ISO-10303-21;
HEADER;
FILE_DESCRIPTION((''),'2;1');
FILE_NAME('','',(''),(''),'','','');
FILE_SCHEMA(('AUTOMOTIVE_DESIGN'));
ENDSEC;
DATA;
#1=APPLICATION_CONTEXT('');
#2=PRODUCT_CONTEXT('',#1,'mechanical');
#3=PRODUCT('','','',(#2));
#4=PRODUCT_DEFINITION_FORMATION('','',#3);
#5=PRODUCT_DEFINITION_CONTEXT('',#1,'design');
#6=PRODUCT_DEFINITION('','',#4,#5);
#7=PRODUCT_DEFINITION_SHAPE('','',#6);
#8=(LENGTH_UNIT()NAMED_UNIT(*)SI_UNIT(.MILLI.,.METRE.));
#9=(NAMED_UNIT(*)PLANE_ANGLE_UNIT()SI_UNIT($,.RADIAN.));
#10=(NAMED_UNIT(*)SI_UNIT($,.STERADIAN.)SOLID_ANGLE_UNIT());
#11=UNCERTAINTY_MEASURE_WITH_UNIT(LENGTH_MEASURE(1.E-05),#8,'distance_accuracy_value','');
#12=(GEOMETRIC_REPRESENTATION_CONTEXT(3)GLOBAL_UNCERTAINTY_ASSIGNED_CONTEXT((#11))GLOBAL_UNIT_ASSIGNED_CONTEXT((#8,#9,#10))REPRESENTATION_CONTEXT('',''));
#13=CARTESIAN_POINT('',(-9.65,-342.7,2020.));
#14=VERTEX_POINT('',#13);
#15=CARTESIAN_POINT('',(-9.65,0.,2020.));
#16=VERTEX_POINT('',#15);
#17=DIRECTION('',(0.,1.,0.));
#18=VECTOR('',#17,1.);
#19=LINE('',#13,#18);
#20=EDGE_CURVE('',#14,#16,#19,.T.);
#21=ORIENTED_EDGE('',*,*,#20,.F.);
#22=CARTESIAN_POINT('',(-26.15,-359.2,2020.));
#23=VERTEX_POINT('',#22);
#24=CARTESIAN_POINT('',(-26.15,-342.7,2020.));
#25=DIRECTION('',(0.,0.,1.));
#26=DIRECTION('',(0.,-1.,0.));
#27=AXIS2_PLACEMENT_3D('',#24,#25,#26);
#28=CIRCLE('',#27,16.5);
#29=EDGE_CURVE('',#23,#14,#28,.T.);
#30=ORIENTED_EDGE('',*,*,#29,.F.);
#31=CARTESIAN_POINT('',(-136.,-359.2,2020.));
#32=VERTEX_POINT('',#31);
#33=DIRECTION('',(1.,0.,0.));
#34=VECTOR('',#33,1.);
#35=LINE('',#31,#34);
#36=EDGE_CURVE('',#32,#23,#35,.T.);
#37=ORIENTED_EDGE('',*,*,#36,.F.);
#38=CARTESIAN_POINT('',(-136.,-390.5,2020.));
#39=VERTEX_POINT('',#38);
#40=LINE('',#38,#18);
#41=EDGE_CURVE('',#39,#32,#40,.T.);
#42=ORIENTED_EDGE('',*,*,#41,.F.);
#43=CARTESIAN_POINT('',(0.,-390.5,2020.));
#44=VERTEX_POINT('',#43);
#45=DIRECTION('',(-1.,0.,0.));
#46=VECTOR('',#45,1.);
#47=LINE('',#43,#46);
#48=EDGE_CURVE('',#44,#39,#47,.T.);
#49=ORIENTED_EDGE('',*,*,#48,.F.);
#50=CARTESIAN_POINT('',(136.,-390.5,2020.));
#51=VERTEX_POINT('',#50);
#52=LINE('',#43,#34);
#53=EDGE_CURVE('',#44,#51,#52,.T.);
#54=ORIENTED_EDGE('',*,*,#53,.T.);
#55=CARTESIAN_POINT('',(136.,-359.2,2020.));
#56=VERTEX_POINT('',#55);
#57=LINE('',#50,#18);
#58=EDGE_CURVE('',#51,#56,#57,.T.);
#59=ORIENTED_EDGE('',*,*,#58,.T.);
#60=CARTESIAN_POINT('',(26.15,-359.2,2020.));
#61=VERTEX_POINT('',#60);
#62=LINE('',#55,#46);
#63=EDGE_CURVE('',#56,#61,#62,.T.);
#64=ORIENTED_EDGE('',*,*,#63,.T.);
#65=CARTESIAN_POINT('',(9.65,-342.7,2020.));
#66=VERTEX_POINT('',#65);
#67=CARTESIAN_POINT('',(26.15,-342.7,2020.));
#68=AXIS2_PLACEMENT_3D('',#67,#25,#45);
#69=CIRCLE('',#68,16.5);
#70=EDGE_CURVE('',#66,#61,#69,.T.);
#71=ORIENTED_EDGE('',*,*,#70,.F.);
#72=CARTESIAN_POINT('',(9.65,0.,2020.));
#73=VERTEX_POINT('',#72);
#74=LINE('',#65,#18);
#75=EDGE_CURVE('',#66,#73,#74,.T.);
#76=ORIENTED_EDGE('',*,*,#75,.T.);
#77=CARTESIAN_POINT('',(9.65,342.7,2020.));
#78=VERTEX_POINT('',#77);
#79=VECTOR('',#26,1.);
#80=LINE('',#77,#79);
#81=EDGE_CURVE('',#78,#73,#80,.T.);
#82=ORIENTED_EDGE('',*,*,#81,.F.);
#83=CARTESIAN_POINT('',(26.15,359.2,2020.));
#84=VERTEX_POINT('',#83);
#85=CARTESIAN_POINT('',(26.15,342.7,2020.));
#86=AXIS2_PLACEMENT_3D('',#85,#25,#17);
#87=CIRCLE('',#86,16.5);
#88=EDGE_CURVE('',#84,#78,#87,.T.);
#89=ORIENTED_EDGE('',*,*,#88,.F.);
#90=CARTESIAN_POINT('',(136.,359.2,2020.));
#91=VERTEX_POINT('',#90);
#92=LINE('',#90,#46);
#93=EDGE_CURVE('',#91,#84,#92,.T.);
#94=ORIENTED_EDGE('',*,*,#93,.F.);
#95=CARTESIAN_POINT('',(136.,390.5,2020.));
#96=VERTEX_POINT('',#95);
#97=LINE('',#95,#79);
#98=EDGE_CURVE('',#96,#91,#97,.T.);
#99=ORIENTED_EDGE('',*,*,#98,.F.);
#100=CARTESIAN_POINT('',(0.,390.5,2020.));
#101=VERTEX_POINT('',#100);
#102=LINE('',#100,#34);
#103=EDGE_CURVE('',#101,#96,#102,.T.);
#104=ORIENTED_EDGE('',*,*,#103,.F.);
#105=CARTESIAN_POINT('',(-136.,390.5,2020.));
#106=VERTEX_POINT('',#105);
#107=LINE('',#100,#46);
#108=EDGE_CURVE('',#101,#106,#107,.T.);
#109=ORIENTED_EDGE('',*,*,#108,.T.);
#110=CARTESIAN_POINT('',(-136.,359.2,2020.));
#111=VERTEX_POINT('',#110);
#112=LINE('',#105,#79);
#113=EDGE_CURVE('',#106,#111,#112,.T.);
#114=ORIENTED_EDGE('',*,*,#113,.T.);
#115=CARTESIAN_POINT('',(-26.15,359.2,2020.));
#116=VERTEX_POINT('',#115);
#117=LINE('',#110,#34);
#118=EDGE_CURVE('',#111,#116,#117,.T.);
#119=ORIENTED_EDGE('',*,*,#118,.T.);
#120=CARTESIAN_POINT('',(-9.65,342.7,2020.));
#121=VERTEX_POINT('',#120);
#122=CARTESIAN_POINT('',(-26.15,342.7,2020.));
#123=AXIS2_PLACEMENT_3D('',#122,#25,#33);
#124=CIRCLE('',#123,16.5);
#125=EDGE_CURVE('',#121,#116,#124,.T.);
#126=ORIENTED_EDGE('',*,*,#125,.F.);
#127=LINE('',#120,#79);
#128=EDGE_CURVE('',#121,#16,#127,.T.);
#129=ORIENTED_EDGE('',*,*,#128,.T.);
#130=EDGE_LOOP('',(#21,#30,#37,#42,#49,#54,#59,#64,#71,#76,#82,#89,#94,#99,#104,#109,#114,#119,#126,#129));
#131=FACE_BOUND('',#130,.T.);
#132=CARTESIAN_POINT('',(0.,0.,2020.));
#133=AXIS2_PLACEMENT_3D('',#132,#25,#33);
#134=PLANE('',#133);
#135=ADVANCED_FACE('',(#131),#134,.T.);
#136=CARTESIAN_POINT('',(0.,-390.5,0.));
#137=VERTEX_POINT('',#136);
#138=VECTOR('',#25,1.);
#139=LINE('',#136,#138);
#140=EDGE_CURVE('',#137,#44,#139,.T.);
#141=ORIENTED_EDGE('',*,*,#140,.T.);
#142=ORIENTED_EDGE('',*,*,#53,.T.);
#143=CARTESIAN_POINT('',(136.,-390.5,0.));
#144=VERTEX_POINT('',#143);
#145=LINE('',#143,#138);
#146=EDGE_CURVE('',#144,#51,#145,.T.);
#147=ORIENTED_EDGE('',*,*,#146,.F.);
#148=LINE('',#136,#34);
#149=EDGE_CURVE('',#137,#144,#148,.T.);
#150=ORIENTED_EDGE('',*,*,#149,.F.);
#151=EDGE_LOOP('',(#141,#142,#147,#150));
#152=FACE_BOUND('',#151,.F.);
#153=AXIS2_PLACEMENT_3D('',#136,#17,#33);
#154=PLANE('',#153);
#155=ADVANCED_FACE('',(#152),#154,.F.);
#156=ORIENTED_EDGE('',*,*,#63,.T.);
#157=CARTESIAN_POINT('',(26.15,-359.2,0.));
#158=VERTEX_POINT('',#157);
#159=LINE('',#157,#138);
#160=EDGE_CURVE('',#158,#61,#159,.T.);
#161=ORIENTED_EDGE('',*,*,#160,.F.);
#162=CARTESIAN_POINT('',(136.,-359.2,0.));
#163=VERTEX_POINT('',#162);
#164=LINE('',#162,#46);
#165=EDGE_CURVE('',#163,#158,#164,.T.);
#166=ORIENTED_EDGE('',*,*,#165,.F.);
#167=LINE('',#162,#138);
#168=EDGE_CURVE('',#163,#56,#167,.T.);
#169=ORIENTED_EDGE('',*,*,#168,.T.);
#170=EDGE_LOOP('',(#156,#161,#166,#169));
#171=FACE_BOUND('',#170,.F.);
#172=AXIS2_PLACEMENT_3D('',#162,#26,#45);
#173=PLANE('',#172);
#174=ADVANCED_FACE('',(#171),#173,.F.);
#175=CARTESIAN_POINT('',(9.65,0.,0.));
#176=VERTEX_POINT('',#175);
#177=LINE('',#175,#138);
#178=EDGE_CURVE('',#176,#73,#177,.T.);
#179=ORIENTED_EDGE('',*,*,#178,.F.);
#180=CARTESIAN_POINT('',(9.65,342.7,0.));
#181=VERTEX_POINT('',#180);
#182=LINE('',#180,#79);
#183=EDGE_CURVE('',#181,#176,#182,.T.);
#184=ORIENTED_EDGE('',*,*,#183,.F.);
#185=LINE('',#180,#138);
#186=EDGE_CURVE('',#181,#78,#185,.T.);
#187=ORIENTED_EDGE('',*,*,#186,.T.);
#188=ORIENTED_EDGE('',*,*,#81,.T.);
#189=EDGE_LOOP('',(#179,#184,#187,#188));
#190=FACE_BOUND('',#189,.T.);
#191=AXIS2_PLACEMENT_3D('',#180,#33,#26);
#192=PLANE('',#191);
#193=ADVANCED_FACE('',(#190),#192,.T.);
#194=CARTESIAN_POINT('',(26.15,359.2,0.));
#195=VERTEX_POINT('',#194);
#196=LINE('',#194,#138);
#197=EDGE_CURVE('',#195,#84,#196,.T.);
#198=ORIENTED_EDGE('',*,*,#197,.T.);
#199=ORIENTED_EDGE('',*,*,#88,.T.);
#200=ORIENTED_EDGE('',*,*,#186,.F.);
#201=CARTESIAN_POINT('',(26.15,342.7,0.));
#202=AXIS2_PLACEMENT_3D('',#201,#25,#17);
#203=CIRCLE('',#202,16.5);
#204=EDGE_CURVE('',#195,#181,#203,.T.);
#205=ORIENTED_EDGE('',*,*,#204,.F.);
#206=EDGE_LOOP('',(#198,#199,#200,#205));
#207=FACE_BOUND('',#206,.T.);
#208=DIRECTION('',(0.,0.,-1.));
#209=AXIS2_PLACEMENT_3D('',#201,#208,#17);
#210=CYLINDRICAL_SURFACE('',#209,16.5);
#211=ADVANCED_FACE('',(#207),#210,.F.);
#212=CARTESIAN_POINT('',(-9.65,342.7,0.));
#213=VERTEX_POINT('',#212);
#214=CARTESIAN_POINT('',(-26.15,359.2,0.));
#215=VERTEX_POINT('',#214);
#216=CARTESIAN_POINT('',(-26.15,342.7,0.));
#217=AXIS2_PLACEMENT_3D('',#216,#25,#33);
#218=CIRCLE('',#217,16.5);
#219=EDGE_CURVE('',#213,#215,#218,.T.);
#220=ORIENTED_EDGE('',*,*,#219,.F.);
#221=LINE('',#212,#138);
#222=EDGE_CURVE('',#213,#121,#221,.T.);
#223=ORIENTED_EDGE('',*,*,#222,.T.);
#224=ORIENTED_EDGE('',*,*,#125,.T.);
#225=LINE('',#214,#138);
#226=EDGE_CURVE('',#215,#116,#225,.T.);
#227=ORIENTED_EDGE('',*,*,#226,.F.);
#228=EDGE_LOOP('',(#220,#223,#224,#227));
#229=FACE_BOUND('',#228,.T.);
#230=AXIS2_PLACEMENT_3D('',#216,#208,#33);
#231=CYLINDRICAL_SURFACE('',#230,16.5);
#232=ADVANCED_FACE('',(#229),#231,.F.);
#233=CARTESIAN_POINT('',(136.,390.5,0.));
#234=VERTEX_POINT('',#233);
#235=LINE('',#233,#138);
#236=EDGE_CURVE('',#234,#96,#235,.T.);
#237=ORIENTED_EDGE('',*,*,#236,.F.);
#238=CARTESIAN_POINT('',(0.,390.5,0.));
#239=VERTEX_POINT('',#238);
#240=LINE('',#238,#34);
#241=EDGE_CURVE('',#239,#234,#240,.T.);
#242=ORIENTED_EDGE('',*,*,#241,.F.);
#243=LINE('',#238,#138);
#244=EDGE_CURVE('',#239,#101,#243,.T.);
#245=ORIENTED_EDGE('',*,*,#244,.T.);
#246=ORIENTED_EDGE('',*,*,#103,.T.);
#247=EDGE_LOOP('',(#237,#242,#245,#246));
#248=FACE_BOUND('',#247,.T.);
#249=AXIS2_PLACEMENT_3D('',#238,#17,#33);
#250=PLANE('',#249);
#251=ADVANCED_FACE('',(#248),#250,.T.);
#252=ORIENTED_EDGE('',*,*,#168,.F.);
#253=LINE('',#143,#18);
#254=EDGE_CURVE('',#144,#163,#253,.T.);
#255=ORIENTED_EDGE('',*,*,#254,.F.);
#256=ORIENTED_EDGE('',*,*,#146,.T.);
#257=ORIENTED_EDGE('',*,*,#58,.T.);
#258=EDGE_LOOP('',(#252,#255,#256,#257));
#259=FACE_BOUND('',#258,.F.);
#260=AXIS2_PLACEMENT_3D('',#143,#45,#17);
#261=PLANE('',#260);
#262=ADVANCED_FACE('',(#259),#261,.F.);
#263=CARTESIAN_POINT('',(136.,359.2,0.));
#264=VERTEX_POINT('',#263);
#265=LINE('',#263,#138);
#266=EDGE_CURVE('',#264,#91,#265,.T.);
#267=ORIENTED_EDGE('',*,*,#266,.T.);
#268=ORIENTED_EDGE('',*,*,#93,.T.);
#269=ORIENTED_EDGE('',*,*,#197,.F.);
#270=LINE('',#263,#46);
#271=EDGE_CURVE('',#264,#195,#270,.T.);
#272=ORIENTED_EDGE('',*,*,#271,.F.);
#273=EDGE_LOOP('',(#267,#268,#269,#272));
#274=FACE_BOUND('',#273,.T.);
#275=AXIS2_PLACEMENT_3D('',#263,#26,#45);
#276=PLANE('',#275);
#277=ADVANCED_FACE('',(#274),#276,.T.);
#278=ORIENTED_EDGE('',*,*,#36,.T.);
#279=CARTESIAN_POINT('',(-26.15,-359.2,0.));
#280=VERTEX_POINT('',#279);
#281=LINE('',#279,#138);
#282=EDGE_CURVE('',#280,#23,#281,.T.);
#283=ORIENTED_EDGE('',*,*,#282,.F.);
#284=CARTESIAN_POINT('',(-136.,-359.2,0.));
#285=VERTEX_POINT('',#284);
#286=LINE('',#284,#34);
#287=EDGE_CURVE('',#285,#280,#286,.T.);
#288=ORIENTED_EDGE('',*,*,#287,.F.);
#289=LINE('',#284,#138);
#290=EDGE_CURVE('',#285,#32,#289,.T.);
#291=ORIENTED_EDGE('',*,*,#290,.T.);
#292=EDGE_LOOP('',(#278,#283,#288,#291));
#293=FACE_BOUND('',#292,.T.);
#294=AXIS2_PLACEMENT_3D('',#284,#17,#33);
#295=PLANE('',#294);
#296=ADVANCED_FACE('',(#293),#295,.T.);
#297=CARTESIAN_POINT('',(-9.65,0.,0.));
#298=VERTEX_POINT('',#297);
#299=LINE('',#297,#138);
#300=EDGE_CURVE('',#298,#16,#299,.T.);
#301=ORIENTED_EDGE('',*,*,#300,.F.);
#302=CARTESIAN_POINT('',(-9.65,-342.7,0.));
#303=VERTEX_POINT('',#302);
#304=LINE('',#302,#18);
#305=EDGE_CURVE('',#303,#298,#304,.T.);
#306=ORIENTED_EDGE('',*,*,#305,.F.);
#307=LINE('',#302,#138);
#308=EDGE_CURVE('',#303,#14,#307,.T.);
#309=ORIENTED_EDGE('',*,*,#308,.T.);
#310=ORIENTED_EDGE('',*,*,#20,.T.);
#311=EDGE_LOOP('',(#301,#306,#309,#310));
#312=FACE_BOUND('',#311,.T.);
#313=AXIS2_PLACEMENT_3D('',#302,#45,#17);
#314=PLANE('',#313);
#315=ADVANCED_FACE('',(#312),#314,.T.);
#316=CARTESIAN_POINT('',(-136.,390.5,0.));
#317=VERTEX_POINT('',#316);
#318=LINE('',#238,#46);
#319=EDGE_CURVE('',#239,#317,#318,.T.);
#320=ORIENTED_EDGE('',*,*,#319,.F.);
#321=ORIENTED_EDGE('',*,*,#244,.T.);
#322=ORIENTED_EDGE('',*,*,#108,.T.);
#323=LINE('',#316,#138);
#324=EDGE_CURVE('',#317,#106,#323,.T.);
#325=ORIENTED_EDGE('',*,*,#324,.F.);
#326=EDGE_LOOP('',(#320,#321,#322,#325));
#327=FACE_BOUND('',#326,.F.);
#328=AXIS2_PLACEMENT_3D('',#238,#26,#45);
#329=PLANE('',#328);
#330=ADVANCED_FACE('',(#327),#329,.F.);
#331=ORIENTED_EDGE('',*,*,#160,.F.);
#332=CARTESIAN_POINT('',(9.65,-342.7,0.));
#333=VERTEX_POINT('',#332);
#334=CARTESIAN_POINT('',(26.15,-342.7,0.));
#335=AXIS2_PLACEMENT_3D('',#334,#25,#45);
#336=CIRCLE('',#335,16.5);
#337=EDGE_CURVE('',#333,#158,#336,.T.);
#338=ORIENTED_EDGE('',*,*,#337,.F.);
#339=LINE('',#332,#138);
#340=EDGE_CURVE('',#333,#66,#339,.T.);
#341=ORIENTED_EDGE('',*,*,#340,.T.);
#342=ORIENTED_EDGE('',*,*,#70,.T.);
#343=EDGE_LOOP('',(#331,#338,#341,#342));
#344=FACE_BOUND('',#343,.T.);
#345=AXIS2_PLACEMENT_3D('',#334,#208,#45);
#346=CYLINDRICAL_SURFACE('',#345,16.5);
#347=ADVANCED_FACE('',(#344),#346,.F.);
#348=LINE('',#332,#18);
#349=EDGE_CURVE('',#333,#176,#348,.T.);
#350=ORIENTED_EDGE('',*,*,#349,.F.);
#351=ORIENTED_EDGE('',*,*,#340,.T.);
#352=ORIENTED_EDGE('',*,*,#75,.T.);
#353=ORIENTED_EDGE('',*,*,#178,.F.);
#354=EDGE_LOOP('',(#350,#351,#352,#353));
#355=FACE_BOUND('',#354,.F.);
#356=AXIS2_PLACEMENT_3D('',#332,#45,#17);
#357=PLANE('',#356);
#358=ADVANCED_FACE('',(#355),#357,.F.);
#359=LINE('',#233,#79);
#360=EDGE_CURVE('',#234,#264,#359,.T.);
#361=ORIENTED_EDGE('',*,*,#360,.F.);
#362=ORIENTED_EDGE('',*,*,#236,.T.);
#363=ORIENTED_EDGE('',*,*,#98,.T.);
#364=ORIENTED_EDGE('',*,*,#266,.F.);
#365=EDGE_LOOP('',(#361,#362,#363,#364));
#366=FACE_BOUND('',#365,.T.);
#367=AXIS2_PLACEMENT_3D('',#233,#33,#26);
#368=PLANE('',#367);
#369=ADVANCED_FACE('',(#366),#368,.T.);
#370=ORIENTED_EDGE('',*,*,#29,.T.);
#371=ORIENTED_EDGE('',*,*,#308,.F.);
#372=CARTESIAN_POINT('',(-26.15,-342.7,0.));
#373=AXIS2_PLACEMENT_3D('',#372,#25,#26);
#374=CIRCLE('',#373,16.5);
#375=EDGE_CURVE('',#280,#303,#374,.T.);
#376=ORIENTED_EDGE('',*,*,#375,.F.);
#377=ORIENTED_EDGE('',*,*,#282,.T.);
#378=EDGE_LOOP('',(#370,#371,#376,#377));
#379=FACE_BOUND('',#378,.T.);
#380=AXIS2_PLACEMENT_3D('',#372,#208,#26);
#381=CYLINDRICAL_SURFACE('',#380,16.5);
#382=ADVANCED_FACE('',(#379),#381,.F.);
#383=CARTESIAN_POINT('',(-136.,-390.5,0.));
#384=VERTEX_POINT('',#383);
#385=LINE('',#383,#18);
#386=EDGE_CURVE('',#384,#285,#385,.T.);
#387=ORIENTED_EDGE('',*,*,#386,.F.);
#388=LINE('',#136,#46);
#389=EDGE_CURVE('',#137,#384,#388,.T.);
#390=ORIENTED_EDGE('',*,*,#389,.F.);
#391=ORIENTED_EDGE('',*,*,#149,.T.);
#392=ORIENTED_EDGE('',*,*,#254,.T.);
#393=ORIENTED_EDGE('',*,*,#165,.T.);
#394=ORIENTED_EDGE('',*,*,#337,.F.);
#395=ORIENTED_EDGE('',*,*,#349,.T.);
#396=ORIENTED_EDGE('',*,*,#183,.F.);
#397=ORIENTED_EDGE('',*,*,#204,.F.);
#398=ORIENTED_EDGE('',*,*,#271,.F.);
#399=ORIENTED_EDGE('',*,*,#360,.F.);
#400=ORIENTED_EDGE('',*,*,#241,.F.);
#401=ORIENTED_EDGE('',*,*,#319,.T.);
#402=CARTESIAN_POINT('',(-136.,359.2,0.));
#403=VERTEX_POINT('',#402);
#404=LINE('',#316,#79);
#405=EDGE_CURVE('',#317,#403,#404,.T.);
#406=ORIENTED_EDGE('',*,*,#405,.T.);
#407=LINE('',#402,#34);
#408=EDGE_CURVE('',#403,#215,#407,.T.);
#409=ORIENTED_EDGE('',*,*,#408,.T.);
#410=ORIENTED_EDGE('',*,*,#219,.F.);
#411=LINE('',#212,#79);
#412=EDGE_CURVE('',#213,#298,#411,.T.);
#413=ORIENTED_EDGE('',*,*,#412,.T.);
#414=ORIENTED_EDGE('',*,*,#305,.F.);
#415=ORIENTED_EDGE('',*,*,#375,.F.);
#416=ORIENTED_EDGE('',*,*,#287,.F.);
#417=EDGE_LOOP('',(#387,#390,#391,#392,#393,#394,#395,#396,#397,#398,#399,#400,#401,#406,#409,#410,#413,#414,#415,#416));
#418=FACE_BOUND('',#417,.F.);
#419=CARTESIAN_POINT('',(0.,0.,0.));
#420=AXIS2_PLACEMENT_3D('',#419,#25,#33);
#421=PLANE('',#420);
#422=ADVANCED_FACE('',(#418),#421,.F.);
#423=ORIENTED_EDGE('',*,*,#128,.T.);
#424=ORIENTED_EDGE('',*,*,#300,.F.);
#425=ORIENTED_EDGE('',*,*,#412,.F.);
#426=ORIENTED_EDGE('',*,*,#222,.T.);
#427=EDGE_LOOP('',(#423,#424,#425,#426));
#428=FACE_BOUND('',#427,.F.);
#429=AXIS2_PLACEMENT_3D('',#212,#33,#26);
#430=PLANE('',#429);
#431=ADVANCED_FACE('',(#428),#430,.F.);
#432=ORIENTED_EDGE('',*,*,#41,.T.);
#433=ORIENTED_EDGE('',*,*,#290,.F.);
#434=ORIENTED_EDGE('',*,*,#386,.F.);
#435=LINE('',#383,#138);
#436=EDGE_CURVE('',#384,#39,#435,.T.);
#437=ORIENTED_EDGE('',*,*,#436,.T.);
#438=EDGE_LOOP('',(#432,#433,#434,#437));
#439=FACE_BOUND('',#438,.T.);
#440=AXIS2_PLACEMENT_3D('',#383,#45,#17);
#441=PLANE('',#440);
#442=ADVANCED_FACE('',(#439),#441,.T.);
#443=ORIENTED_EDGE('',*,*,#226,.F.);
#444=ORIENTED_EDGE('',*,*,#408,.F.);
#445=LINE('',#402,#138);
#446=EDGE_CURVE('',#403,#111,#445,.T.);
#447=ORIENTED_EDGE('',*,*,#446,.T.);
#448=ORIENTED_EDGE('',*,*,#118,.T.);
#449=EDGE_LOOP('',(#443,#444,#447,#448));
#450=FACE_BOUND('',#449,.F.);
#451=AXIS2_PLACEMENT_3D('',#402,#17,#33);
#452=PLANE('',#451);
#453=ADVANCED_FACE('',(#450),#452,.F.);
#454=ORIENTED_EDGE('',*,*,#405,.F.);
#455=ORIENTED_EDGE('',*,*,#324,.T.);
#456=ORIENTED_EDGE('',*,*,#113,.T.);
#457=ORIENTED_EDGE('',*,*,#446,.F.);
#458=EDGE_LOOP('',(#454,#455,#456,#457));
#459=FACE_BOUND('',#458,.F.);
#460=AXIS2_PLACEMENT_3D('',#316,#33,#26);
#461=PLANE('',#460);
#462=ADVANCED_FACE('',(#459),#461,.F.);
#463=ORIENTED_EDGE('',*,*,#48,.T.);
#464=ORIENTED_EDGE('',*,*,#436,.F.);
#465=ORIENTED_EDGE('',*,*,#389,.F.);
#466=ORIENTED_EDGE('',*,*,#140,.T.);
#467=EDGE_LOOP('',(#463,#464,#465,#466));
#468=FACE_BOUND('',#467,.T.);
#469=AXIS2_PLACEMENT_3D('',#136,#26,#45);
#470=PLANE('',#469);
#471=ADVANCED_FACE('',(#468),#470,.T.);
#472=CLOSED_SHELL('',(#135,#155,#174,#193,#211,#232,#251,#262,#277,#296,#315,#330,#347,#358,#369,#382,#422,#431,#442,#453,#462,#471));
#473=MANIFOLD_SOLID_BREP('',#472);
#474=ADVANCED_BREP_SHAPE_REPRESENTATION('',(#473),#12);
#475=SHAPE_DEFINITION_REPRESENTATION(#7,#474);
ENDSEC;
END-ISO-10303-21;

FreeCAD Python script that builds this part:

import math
import FreeCAD as App
import Part
import Sketcher

V = App.Vector
Q = App.Units.Quantity

doc = App.newDocument("Part")
body = doc.addObject("PartDesign::Body", "Body")

sketch1 = body.newObject("Sketcher::SketchObject", "Sketch")
sketch1.AttachmentSupport = (doc.getObject("XY_Plane"), [""])
sketch1.MapMode = "FlatFace"
sketch1.addGeometry(Part.LineSegment(V(-136, -359, 0), V(-136, -390, 0)), False)
sketch1.addGeometry(Part.LineSegment(V(-136, -390, 0), V(136, -390, 0)), False)
sketch1.addGeometry(Part.LineSegment(V(136, -390, 0), V(136, -359, 0)), False)
sketch1.addGeometry(Part.LineSegment(V(136, -359, 0), V(26, -359, 0)), False)
sketch1.addGeometry(Part.ArcOfCircle(Part.Circle(V(26, -343, 0), V(0, 0, 1), 16), math.radians(180), math.radians(270)), False)
sketch1.addGeometry(Part.LineSegment(V(10, -343, 0), V(10, 343, 0)), False)
sketch1.addGeometry(Part.ArcOfCircle(Part.Circle(V(26, 343, 0), V(0, 0, 1), 16), math.radians(90), math.radians(180)), False)
sketch1.addGeometry(Part.LineSegment(V(26, 359, 0), V(136, 359, 0)), False)
sketch1.addGeometry(Part.LineSegment(V(136, 359, 0), V(136, 390, 0)), False)
sketch1.addGeometry(Part.LineSegment(V(136, 390, 0), V(-136, 390, 0)), False)
sketch1.addGeometry(Part.LineSegment(V(-136, 390, 0), V(-136, 359, 0)), False)
sketch1.addGeometry(Part.LineSegment(V(-136, 359, 0), V(-26, 359, 0)), False)
sketch1.addGeometry(Part.ArcOfCircle(Part.Circle(V(-26, 343, 0), V(0, 0, 1), 16), math.radians(0), math.radians(90)), False)
sketch1.addGeometry(Part.LineSegment(V(-10, 343, 0), V(-10, -343, 0)), False)
sketch1.addGeometry(Part.ArcOfCircle(Part.Circle(V(-26, -343, 0), V(0, 0, 1), 16), math.radians(-90), math.radians(0)), False)
sketch1.addGeometry(Part.LineSegment(V(-26, -359, 0), V(-136, -359, 0)), False)
sketch1.addConstraint(Sketcher.Constraint("Coincident", 0, 2, 1, 1))
sketch1.addConstraint(Sketcher.Constraint("Coincident", 1, 2, 2, 1))
sketch1.addConstraint(Sketcher.Constraint("Coincident", 2, 2, 3, 1))
sketch1.addConstraint(Sketcher.Constraint("Tangent", 3, 2, 4, 2))
sketch1.addConstraint(Sketcher.Constraint("Tangent", 4, 1, 5, 1))
sketch1.addConstraint(Sketcher.Constraint("Tangent", 5, 2, 6, 2))
sketch1.addConstraint(Sketcher.Constraint("Tangent", 6, 1, 7, 1))
sketch1.addConstraint(Sketcher.Constraint("Coincident", 7, 2, 8, 1))
sketch1.addConstraint(Sketcher.Constraint("Coincident", 8, 2, 9, 1))
sketch1.addConstraint(Sketcher.Constraint("Coincident", 9, 2, 10, 1))
sketch1.addConstraint(Sketcher.Constraint("Coincident", 10, 2, 11, 1))
sketch1.addConstraint(Sketcher.Constraint("Tangent", 11, 2, 12, 2))
sketch1.addConstraint(Sketcher.Constraint("Tangent", 12, 1, 13, 1))
sketch1.addConstraint(Sketcher.Constraint("Tangent", 13, 2, 14, 2))
sketch1.addConstraint(Sketcher.Constraint("Tangent", 14, 1, 15, 1))
sketch1.addConstraint(Sketcher.Constraint("Coincident", 15, 2, 0, 1))
sketch1.addConstraint(Sketcher.Constraint("Vertical", 0))
sketch1.addConstraint(Sketcher.Constraint("Horizontal", 1))
sketch1.addConstraint(Sketcher.Constraint("Vertical", 2))
sketch1.addConstraint(Sketcher.Constraint("Horizontal", 3))
sketch1.addConstraint(Sketcher.Constraint("Vertical", 5))
sketch1.addConstraint(Sketcher.Constraint("Horizontal", 7))
sketch1.addConstraint(Sketcher.Constraint("Vertical", 8))
sketch1.addConstraint(Sketcher.Constraint("Horizontal", 9))
sketch1.addConstraint(Sketcher.Constraint("Vertical", 10))
sketch1.addConstraint(Sketcher.Constraint("Horizontal", 11))
sketch1.addConstraint(Sketcher.Constraint("Vertical", 13))
sketch1.addConstraint(Sketcher.Constraint("Horizontal", 15))
sketch1.addConstraint(Sketcher.Constraint("Equal", 4, 6))
sketch1.addConstraint(Sketcher.Constraint("Equal", 6, 12))
sketch1.addConstraint(Sketcher.Constraint("Equal", 12, 14))
sketch1.addConstraint(Sketcher.Constraint("Symmetric", 4, 3, 12, 3, -1, 1))
sketch1.addConstraint(Sketcher.Constraint("Symmetric", 0, 2, 8, 2, -1, 1))
sketch1.addConstraint(Sketcher.Constraint("Symmetric", 7, 2, 10, 2, -2))
sketch1.addConstraint(Sketcher.Constraint("Symmetric", 2, 2, 15, 2, -2))
sketch1.addConstraint(Sketcher.Constraint("Radius", 4, Q("16.5 mm")))
sketch1.addConstraint(Sketcher.Constraint("DistanceY", 0, 2, 0, 1, Q("31.3 mm")))
sketch1.addConstraint(Sketcher.Constraint("DistanceX", 0, 2, -1, 1, Q("136 mm")))
sketch1.addConstraint(Sketcher.Constraint("DistanceY", 0, 2, -1, 1, Q("390.5 mm")))
sketch1.addConstraint(Sketcher.Constraint("DistanceX", -1, 1, 4, 1, Q("9.65 mm")))
pad1 = body.newObject("PartDesign::Pad", "Pad")
pad1.Profile = sketch1
pad1.Length = 2020

doc.recompute()
